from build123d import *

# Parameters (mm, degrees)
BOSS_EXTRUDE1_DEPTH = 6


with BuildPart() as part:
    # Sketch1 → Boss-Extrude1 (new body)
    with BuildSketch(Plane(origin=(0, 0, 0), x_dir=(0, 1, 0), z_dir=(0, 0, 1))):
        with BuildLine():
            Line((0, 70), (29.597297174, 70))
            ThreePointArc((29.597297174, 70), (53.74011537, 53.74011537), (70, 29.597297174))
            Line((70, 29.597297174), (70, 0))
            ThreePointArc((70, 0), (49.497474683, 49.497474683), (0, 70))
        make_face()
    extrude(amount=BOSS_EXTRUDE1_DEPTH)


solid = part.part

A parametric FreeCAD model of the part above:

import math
import FreeCAD as App
import Part
import Sketcher

V = App.Vector
Q = App.Units.Quantity

doc = App.newDocument("Part")
params = doc.addObject("Spreadsheet::Sheet", "Params")
for row, (alias, value) in enumerate([
    ("sketch1_radius", "70 mm"),
    ("sketch1_radius2", "76 mm"),
    ("pad1_length", "6 mm"),
], start=1):
    params.set(f"A{row}", alias)
    params.set(f"B{row}", "=" + value)
    params.setAlias(f"B{row}", alias)

body = doc.addObject("PartDesign::Body", "Body")

sketch1 = body.newObject("Sketcher::SketchObject", "Sketch")
sketch1.AttachmentSupport = (doc.getObject("XY_Plane"), [""])
sketch1.MapMode = "FlatFace"
sketch1.addGeometry([
    Part.LineSegment(V(-70, 29.597297, 0), V(-70, 0, 0)),
    Part.ArcOfCircle(Part.Circle(V(0, 0, 0), V(0, 0, 1), 70), math.radians(90), math.radians(180)),
    Part.LineSegment(V(0, 70, 0), V(-29.597297, 70, 0)),
    Part.ArcOfCircle(Part.Circle(V(0, 0, 0), V(0, 0, 1), 76), math.radians(112.919542), math.radians(157.080458)),
], False)
sketch1.addConstraint([
    Sketcher.Constraint("Tangent", 0, 2, 1, 2),
    Sketcher.Constraint("Tangent", 1, 1, 2, 1),
    Sketcher.Constraint("Coincident", 2, 2, 3, 1),
    Sketcher.Constraint("Coincident", 3, 2, 0, 1),
    Sketcher.Constraint("Vertical", 0),
    Sketcher.Constraint("Horizontal", 2),
    Sketcher.Constraint("Coincident", 1, 3, -1, 1),
    Sketcher.Constraint("Coincident", 3, 3, -1, 1),
    Sketcher.Constraint("Radius", 1, Q("70 mm")),
    Sketcher.Constraint("Radius", 3, Q("76 mm")),
])
sketch1.setExpression("Constraints[8]", "Params.sketch1_radius")
sketch1.setExpression("Constraints[9]", "Params.sketch1_radius2")
pad1 = body.newObject("PartDesign::Pad", "Pad")
pad1.Profile = sketch1
pad1.setExpression("Length", "Params.pad1_length")

doc.recompute()
